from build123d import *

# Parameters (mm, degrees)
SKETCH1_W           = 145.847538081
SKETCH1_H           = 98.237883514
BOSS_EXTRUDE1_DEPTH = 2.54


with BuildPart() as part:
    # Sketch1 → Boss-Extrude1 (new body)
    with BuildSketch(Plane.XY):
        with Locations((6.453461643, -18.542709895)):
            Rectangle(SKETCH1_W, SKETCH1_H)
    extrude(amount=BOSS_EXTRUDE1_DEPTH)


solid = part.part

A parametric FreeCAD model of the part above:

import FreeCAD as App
import Part
import Sketcher
from FreeCAD import Vector
Q = App.Units.Quantity

doc = App.newDocument("Part")
body = doc.addObject("PartDesign::Body", "Body")

# Sketch on XY plane
sketch1 = doc.addObject("Sketcher::SketchObject", "Sketch")
body.addObject(sketch1)
sketch1.AttachmentSupport = (doc.XY_Plane, [""])
sketch1.MapMode = "FlatFace"
sketch1.addGeometry(Part.LineSegment(Vector(-66.470307, 30.576232, 0), Vector(-66.470307, -67.661652, 0)), False)
sketch1.addGeometry(Part.LineSegment(Vector(-66.470307, -67.661652, 0), Vector(79.377231, -67.661652, 0)), False)
sketch1.addGeometry(Part.LineSegment(Vector(79.377231, -67.661652, 0), Vector(79.377231, 30.576232, 0)), False)
sketch1.addGeometry(Part.LineSegment(Vector(79.377231, 30.576232, 0), Vector(-66.470307, 30.576232, 0)), False)
sketch1.addConstraint(Sketcher.Constraint("Coincident", 0, 2, 1, 1))
sketch1.addConstraint(Sketcher.Constraint("Coincident", 1, 2, 2, 1))
sketch1.addConstraint(Sketcher.Constraint("Coincident", 2, 2, 3, 1))
sketch1.addConstraint(Sketcher.Constraint("Coincident", 3, 2, 0, 1))
sketch1.addConstraint(Sketcher.Constraint("Vertical", 0))
sketch1.addConstraint(Sketcher.Constraint("Horizontal", 1))
sketch1.addConstraint(Sketcher.Constraint("Vertical", 2))
sketch1.addConstraint(Sketcher.Constraint("Horizontal", 3))
sketch1.addConstraint(Sketcher.Constraint("DistanceX", 1, 1, 1, 2, 145.847538))
sketch1.addConstraint(Sketcher.Constraint("DistanceY", 0, 2, 0, 1, 98.237884))
sketch1.addConstraint(Sketcher.Constraint("DistanceY", 0, 2, -1, 1, 67.661652))
sketch1.addConstraint(Sketcher.Constraint("DistanceX", -1, 1, 1, 2, 79.377231))
pad1 = doc.addObject("PartDesign::Pad", "Pad")
body.addObject(pad1)
pad1.Profile = sketch1
pad1.Length = Q("0.1 in")

doc.recompute()
